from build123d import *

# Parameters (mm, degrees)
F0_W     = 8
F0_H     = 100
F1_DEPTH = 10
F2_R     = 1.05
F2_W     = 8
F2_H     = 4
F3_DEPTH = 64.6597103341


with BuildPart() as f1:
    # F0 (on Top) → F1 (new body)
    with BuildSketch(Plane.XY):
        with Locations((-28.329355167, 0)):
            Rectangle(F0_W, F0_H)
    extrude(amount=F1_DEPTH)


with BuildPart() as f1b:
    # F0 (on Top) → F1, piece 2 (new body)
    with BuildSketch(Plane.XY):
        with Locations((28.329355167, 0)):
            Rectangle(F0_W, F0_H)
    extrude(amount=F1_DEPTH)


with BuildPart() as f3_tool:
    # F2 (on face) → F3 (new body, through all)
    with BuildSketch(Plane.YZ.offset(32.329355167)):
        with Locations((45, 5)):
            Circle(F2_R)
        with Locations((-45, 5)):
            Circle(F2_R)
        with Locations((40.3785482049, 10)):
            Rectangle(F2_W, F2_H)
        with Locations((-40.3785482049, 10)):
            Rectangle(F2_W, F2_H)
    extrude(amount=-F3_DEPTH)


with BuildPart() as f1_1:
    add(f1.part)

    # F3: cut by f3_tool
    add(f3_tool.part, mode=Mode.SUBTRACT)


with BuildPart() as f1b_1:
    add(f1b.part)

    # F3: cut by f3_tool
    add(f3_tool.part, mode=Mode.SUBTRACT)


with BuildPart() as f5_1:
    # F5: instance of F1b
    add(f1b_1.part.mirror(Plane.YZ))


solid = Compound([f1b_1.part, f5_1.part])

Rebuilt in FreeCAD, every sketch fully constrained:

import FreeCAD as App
import Part
import Sketcher

V = App.Vector
Q = App.Units.Quantity

doc = App.newDocument("Part")
params = doc.addObject("Spreadsheet::Sheet", "Params")
for row, (alias, value) in enumerate([
    ("sketch1_width", "8 mm"),
    ("sketch1_height", "100 mm"),
    ("pad1_length", "10 mm"),
    ("sketch2_width", "8 mm"),
    ("sketch2_height", "100 mm"),
    ("pad2_length", "10 mm"),
    ("sketch3_diameter", "2.1 mm"),
    ("sketch3_width", "8 mm"),
    ("sketch3_height", "4 mm"),
    ("pad3_length", "64.65971 mm"),
], start=1):
    params.set(f"A{row}", alias)
    params.set(f"B{row}", "=" + value)
    params.setAlias(f"B{row}", alias)

body = doc.addObject("PartDesign::Body", "Body")

sketch1 = body.newObject("Sketcher::SketchObject", "Sketch")
sketch1.AttachmentSupport = (doc.getObject("XY_Plane"), [""])
sketch1.MapMode = "FlatFace"
sketch1.addGeometry([
    Part.LineSegment(V(-32, 50, 0), V(-32, -50, 0)),
    Part.LineSegment(V(-32, -50, 0), V(-24, -50, 0)),
    Part.LineSegment(V(-24, -50, 0), V(-24, 50, 0)),
    Part.LineSegment(V(-24, 50, 0), V(-32, 50, 0)),
], False)
sketch1.addConstraint([
    Sketcher.Constraint("Coincident", 0, 2, 1, 1),
    Sketcher.Constraint("Coincident", 1, 2, 2, 1),
    Sketcher.Constraint("Coincident", 2, 2, 3, 1),
    Sketcher.Constraint("Coincident", 3, 2, 0, 1),
    Sketcher.Constraint("Vertical", 0),
    Sketcher.Constraint("Horizontal", 1),
    Sketcher.Constraint("Vertical", 2),
    Sketcher.Constraint("Horizontal", 3),
    Sketcher.Constraint("DistanceX", 1, 1, 1, 2, Q("8 mm")),
    Sketcher.Constraint("DistanceY", 0, 2, 0, 1, Q("100 mm")),
    Sketcher.Constraint("DistanceY", 0, 2, -1, 1, Q("50 mm")),
    Sketcher.Constraint("DistanceX", 0, 2, -1, 1, Q("32.329355 mm")),
])
sketch1.setExpression("Constraints[8]", "Params.sketch1_width")
sketch1.setExpression("Constraints[9]", "Params.sketch1_height")
pad1 = body.newObject("PartDesign::Pad", "Pad")
pad1.Profile = sketch1
pad1.setExpression("Length", "Params.pad1_length")
body2 = doc.addObject("PartDesign::Body", "Body001")

sketch2 = body2.newObject("Sketcher::SketchObject", "Sketch001")
sketch2.AttachmentSupport = (doc.getObject("XY_Plane001"), [""])
sketch2.MapMode = "FlatFace"
sketch2.addGeometry([
    Part.LineSegment(V(24, 50, 0), V(24, -50, 0)),
    Part.LineSegment(V(24, -50, 0), V(32, -50, 0)),
    Part.LineSegment(V(32, -50, 0), V(32, 50, 0)),
    Part.LineSegment(V(32, 50, 0), V(24, 50, 0)),
], False)
sketch2.addConstraint([
    Sketcher.Constraint("Coincident", 0, 2, 1, 1),
    Sketcher.Constraint("Coincident", 1, 2, 2, 1),
    Sketcher.Constraint("Coincident", 2, 2, 3, 1),
    Sketcher.Constraint("Coincident", 3, 2, 0, 1),
    Sketcher.Constraint("Vertical", 0),
    Sketcher.Constraint("Horizontal", 1),
    Sketcher.Constraint("Vertical", 2),
    Sketcher.Constraint("Horizontal", 3),
    Sketcher.Constraint("DistanceX", 1, 1, 1, 2, Q("8 mm")),
    Sketcher.Constraint("DistanceY", 0, 2, 0, 1, Q("100 mm")),
    Sketcher.Constraint("DistanceY", 0, 2, -1, 1, Q("50 mm")),
    Sketcher.Constraint("DistanceX", -1, 1, 0, 2, Q("24.329355 mm")),
])
sketch2.setExpression("Constraints[8]", "Params.sketch2_width")
sketch2.setExpression("Constraints[9]", "Params.sketch2_height")
pad2 = body2.newObject("PartDesign::Pad", "Pad001")
pad2.Profile = sketch2
pad2.setExpression("Length", "Params.pad2_length")
body3 = doc.addObject("PartDesign::Body", "Body002")
body3.AllowCompound = True

sketch3 = body3.newObject("Sketcher::SketchObject", "Sketch002")
sketch3.AttachmentSupport = (doc.getObject("YZ_Plane002"), [""])
sketch3.MapMode = "FlatFace"
sketch3.AttachmentOffset = App.Placement(V(0, 0, 32.329355), App.Rotation())
sketch3.addGeometry([
    Part.Circle(V(45, 5, 0), V(0, 0, 1), 1.1),
    Part.Circle(V(-45, 5, 0), V(0, 0, 1), 1.1),
    Part.LineSegment(V(36.4, 12, 0), V(36.4, 8, 0)),
    Part.LineSegment(V(36.4, 8, 0), V(44.4, 8, 0)),
    Part.LineSegment(V(44.4, 8, 0), V(44.4, 12, 0)),
    Part.LineSegment(V(44.4, 12, 0), V(36.4, 12, 0)),
    Part.LineSegment(V(-44.4, 12, 0), V(-44.4, 8, 0)),
    Part.LineSegment(V(-44.4, 8, 0), V(-36.4, 8, 0)),
    Part.LineSegment(V(-36.4, 8, 0), V(-36.4, 12, 0)),
    Part.LineSegment(V(-36.4, 12, 0), V(-44.4, 12, 0)),
], False)
sketch3.addConstraint([
    Sketcher.Constraint("Coincident", 2, 2, 3, 1),
    Sketcher.Constraint("Coincident", 3, 2, 4, 1),
    Sketcher.Constraint("Coincident", 4, 2, 5, 1),
    Sketcher.Constraint("Coincident", 5, 2, 2, 1),
    Sketcher.Constraint("Coincident", 6, 2, 7, 1),
    Sketcher.Constraint("Coincident", 7, 2, 8, 1),
    Sketcher.Constraint("Coincident", 8, 2, 9, 1),
    Sketcher.Constraint("Coincident", 9, 2, 6, 1),
    Sketcher.Constraint("Vertical", 2),
    Sketcher.Constraint("Horizontal", 3),
    Sketcher.Constraint("Vertical", 4),
    Sketcher.Constraint("Horizontal", 5),
    Sketcher.Constraint("Vertical", 6),
    Sketcher.Constraint("Horizontal", 7),
    Sketcher.Constraint("Vertical", 8),
    Sketcher.Constraint("Horizontal", 9),
    Sketcher.Constraint("Equal", 0, 1),
    Sketcher.Constraint("Symmetric", 0, 3, 1, 3, -2),
    Sketcher.Constraint("Symmetric", 3, 2, 6, 2, -2),
    Sketcher.Constraint("Symmetric", 5, 2, 8, 2, -2),
    Sketcher.Constraint("Diameter", 0, Q("2.1 mm")),
    Sketcher.Constraint("DistanceX", 3, 1, 3, 2, Q("8 mm")),
    Sketcher.Constraint("DistanceY", 2, 2, 2, 1, Q("4 mm")),
    Sketcher.Constraint("DistanceX", -1, 1, 0, 3, Q("45 mm")),
    Sketcher.Constraint("DistanceY", -1, 1, 0, 3, Q("5 mm")),
    Sketcher.Constraint("DistanceY", -1, 1, 2, 2, Q("8 mm")),
    Sketcher.Constraint("DistanceX", -1, 1, 2, 2, Q("36.378548 mm")),
])
sketch3.setExpression("Constraints[20]", "Params.sketch3_diameter")
sketch3.setExpression("Constraints[21]", "Params.sketch3_width")
sketch3.setExpression("Constraints[22]", "Params.sketch3_height")
pad3 = body3.newObject("PartDesign::Pad", "Pad002")
pad3.Profile = sketch3
pad3.setExpression("Length", "Params.pad3_length")
pad3.Reversed = True
doc.recompute()

body4 = doc.addObject("PartDesign::Body", "Body003")
body4.BaseFeature = body3
boolean = body.newObject("PartDesign::Boolean", "Boolean")
boolean.Type = "Cut"
boolean.addObjects([body4])
doc.recompute()

boolean2 = body2.newObject("PartDesign::Boolean", "Boolean001")
boolean2.Type = "Cut"
boolean2.addObjects([body3])
body5 = doc.addObject("PartDesign::Body", "Body004")
doc.recompute()

mirroring = doc.addObject("Part::Mirroring", "Mirroring")
mirroring.Source = body2
mirroring.Base = V(0, 0, 0)
mirroring.Normal = V(1, 0, 0)
body5.BaseFeature = mirroring
doc.recompute()
body.Visibility = False
mirroring.Visibility = False

doc.recompute()
